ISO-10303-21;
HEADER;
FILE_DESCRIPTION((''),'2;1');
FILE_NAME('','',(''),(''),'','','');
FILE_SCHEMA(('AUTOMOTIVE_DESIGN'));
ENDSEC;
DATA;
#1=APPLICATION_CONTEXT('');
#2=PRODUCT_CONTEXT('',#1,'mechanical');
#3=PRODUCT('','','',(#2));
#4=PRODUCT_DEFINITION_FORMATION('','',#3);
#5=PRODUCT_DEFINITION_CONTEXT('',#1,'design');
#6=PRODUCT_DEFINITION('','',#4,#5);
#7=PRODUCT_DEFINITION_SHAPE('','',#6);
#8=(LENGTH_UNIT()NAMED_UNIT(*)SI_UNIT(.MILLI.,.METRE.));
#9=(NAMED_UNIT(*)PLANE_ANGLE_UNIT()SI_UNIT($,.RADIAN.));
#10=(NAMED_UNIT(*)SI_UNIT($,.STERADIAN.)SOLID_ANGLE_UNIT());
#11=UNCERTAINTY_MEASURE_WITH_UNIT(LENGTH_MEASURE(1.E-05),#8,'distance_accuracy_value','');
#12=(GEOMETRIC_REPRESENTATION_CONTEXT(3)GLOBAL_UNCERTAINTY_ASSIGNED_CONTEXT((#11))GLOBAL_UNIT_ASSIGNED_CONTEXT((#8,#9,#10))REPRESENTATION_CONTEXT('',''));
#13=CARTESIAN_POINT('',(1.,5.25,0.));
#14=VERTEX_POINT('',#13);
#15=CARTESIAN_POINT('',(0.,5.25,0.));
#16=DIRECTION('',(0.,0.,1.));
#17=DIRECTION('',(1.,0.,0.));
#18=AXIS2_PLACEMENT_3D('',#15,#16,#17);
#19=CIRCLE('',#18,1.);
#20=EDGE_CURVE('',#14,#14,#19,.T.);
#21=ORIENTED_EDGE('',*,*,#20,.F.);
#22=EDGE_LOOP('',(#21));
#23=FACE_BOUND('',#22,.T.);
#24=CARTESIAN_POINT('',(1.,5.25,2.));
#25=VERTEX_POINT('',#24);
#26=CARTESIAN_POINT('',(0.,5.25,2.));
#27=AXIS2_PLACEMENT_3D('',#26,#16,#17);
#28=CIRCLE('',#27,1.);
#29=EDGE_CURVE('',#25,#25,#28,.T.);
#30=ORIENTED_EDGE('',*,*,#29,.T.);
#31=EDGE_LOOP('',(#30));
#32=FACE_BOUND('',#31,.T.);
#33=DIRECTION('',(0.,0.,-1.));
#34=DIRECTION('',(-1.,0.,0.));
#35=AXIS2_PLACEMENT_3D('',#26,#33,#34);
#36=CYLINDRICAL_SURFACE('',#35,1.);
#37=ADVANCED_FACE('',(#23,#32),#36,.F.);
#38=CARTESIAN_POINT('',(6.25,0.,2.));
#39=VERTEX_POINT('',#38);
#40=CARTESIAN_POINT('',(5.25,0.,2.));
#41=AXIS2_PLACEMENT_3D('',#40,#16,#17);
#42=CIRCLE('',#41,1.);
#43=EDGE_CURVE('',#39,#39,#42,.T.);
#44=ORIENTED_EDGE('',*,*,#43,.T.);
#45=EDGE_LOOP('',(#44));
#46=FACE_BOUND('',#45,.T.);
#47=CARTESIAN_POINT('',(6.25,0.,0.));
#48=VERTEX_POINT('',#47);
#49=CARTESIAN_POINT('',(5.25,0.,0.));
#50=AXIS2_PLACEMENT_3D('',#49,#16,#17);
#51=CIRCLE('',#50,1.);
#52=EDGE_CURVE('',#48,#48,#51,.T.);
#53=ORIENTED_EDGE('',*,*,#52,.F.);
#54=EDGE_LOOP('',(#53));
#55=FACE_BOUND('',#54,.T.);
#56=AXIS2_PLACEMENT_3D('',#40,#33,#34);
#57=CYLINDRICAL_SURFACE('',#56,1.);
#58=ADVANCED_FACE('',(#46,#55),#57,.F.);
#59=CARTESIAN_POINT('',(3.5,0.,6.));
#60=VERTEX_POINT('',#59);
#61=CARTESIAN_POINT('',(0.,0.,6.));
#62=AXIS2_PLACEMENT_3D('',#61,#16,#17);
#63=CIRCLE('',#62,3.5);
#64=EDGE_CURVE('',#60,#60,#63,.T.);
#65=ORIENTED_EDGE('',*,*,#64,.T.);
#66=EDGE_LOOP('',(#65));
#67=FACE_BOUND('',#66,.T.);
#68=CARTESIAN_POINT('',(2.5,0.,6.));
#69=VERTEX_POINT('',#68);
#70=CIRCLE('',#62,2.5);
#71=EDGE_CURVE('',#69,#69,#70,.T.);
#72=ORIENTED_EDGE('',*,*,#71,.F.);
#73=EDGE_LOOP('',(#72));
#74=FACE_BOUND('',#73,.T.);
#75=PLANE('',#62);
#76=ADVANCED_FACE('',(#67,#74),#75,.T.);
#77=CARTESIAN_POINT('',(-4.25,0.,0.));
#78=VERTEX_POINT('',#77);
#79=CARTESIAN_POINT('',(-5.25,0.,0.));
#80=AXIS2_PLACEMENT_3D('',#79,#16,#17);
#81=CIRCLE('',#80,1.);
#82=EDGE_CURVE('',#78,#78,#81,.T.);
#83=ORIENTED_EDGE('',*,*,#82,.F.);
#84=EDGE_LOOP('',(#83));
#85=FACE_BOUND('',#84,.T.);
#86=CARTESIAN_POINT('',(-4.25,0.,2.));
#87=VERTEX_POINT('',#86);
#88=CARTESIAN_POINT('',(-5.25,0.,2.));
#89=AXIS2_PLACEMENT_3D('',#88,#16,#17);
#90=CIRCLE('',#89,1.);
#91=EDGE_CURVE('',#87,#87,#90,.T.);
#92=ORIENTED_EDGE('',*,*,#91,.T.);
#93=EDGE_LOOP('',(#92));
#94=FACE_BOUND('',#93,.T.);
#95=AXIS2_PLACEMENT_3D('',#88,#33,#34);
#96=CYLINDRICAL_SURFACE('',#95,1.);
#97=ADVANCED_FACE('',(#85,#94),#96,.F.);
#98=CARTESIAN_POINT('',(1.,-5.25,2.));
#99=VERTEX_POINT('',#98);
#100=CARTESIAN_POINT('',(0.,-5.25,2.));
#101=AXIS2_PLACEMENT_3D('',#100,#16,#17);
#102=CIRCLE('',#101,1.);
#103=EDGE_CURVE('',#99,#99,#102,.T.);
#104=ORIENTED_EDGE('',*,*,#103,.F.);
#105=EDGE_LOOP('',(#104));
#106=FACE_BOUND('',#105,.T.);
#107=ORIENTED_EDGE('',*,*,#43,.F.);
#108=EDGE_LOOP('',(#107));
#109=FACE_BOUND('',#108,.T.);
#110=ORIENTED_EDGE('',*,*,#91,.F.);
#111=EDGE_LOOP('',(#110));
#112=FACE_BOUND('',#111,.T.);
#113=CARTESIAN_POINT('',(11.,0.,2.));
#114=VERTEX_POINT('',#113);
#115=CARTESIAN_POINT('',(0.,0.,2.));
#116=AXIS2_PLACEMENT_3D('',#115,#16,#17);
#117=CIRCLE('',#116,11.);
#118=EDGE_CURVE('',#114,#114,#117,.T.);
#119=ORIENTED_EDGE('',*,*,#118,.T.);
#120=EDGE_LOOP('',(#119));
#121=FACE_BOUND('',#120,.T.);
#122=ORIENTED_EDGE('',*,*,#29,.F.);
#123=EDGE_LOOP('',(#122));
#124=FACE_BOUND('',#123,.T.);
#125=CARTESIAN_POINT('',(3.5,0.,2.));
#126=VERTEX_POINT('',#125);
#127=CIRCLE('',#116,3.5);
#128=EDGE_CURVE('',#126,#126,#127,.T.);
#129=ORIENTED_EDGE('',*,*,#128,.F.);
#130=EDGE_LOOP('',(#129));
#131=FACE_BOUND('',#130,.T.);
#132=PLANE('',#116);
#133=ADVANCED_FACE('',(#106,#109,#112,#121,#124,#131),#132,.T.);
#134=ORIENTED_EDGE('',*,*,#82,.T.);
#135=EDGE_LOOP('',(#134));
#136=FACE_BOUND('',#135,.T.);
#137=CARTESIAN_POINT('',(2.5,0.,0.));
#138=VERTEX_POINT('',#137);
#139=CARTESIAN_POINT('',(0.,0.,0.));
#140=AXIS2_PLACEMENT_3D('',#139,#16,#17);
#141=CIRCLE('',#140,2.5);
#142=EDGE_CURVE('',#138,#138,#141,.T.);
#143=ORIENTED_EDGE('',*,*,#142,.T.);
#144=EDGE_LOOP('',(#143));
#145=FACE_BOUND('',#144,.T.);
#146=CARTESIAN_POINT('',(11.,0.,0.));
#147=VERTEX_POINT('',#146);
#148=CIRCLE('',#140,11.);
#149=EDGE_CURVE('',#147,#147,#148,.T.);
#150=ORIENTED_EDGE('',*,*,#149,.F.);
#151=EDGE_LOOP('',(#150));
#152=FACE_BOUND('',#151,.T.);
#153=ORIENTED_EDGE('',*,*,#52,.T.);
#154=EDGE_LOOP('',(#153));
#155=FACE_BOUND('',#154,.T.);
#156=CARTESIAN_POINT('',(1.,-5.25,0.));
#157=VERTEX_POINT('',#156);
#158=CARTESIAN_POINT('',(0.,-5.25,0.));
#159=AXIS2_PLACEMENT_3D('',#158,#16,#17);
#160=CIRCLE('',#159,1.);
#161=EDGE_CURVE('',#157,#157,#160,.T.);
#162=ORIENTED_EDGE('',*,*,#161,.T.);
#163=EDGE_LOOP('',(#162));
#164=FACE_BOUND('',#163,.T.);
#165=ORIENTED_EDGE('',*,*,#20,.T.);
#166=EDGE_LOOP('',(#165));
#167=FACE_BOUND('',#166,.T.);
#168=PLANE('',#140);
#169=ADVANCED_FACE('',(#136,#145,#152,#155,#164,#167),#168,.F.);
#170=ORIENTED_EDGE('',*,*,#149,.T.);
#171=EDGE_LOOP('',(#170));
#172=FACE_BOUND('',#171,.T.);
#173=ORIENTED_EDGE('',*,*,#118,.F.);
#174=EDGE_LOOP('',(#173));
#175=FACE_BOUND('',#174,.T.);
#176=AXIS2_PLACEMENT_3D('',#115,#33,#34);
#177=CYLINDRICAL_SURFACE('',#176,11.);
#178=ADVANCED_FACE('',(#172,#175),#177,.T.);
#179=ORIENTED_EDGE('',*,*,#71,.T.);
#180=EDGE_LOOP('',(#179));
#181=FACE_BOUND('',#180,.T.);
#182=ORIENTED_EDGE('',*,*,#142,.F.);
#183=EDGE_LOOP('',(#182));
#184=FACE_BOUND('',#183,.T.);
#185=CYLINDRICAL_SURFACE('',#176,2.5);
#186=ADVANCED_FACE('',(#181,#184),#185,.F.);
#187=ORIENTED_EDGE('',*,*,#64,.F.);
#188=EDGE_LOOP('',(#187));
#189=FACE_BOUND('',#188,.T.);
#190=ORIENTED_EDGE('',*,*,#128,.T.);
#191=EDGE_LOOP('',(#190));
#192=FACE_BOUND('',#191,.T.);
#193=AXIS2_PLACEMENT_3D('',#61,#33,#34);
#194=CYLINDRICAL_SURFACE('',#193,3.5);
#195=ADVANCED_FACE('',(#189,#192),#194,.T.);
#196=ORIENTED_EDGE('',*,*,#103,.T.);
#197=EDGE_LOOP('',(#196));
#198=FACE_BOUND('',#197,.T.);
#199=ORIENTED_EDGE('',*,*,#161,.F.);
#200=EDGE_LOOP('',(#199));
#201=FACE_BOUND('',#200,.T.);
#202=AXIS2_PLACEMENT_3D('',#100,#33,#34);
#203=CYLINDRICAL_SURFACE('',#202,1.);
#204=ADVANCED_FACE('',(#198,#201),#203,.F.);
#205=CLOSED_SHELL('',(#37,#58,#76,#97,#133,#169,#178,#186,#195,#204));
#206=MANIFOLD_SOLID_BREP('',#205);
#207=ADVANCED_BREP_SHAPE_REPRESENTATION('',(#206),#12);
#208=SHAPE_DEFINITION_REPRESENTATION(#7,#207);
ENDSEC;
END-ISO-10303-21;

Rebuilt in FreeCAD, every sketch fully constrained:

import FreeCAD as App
import Part
import Sketcher
from FreeCAD import Vector
Q = App.Units.Quantity

doc = App.newDocument("Part")
body = doc.addObject("PartDesign::Body", "Body")

# Sketch on XY plane
sketch1 = doc.addObject("Sketcher::SketchObject", "Sketch")
body.addObject(sketch1)
sketch1.AttachmentSupport = (doc.XY_Plane, [""])
sketch1.MapMode = "FlatFace"
sketch1.addGeometry(Part.Circle(Vector(0, 0, 0), Vector(0, 0, 1), 11), False)
sketch1.addGeometry(Part.Circle(Vector(0, -5.25, 0), Vector(0, 0, 1), 1), False)
sketch1.addGeometry(Part.Circle(Vector(-5.25, 0, 0), Vector(0, 0, 1), 1), False)
sketch1.addGeometry(Part.Circle(Vector(0, 0, 0), Vector(0, 0, 1), 2.5), False)
sketch1.addGeometry(Part.Circle(Vector(5.25, 0, 0), Vector(0, 0, 1), 1), False)
sketch1.addGeometry(Part.Circle(Vector(0, 5.25, 0), Vector(0, 0, 1), 1), False)
sketch1.addConstraint(Sketcher.Constraint("Coincident", 0, 3, -1, 1))
sketch1.addConstraint(Sketcher.Constraint("Coincident", 3, 3, -1, 1))
sketch1.addConstraint(Sketcher.Constraint("Equal", 1, 2))
sketch1.addConstraint(Sketcher.Constraint("Equal", 2, 4))
sketch1.addConstraint(Sketcher.Constraint("Equal", 4, 5))
sketch1.addConstraint(Sketcher.Constraint("Symmetric", 2, 3, 4, 3, -1, 1))
sketch1.addConstraint(Sketcher.Constraint("Symmetric", 1, 3, 5, 3, -1, 1))
sketch1.addConstraint(Sketcher.Constraint("PointOnObject", 1, 3, -2))
sketch1.addConstraint(Sketcher.Constraint("PointOnObject", 2, 3, -1))
sketch1.addConstraint(Sketcher.Constraint("Diameter", 0, Q("22 mm")))
sketch1.addConstraint(Sketcher.Constraint("Diameter", 1, Q("2 mm")))
sketch1.addConstraint(Sketcher.Constraint("Diameter", 3, Q("5 mm")))
sketch1.addConstraint(Sketcher.Constraint("DistanceX", 2, 3, 4, 3, Q("10.5 mm")))
sketch1.addConstraint(Sketcher.Constraint("DistanceY", 1, 3, 5, 3, Q("10.5 mm")))
pad1 = doc.addObject("PartDesign::Pad", "Pad")
body.addObject(pad1)
pad1.Profile = sketch1
pad1.Length = 2

# Sketch on XY plane
sketch2 = doc.addObject("Sketcher::SketchObject", "Sketch001")
body.addObject(sketch2)
sketch2.AttachmentSupport = (doc.XY_Plane, [""])
sketch2.MapMode = "FlatFace"
sketch2.AttachmentOffset = App.Placement(Vector(0, 0, 2), App.Rotation())
sketch2.addGeometry(Part.Circle(Vector(0, 0, 0), Vector(0, 0, 1), 3.5), False)
sketch2.addGeometry(Part.Circle(Vector(0, 0, 0), Vector(0, 0, 1), 2.5), False)
sketch2.addConstraint(Sketcher.Constraint("Coincident", 0, 3, -1, 1))
sketch2.addConstraint(Sketcher.Constraint("Coincident", 1, 3, -1, 1))
sketch2.addConstraint(Sketcher.Constraint("Diameter", 0, Q("7 mm")))
sketch2.addConstraint(Sketcher.Constraint("Diameter", 1, Q("5 mm")))
pad2 = doc.addObject("PartDesign::Pad", "Pad001")
body.addObject(pad2)
pad2.Profile = sketch2
pad2.Length = 4

doc.recompute()
